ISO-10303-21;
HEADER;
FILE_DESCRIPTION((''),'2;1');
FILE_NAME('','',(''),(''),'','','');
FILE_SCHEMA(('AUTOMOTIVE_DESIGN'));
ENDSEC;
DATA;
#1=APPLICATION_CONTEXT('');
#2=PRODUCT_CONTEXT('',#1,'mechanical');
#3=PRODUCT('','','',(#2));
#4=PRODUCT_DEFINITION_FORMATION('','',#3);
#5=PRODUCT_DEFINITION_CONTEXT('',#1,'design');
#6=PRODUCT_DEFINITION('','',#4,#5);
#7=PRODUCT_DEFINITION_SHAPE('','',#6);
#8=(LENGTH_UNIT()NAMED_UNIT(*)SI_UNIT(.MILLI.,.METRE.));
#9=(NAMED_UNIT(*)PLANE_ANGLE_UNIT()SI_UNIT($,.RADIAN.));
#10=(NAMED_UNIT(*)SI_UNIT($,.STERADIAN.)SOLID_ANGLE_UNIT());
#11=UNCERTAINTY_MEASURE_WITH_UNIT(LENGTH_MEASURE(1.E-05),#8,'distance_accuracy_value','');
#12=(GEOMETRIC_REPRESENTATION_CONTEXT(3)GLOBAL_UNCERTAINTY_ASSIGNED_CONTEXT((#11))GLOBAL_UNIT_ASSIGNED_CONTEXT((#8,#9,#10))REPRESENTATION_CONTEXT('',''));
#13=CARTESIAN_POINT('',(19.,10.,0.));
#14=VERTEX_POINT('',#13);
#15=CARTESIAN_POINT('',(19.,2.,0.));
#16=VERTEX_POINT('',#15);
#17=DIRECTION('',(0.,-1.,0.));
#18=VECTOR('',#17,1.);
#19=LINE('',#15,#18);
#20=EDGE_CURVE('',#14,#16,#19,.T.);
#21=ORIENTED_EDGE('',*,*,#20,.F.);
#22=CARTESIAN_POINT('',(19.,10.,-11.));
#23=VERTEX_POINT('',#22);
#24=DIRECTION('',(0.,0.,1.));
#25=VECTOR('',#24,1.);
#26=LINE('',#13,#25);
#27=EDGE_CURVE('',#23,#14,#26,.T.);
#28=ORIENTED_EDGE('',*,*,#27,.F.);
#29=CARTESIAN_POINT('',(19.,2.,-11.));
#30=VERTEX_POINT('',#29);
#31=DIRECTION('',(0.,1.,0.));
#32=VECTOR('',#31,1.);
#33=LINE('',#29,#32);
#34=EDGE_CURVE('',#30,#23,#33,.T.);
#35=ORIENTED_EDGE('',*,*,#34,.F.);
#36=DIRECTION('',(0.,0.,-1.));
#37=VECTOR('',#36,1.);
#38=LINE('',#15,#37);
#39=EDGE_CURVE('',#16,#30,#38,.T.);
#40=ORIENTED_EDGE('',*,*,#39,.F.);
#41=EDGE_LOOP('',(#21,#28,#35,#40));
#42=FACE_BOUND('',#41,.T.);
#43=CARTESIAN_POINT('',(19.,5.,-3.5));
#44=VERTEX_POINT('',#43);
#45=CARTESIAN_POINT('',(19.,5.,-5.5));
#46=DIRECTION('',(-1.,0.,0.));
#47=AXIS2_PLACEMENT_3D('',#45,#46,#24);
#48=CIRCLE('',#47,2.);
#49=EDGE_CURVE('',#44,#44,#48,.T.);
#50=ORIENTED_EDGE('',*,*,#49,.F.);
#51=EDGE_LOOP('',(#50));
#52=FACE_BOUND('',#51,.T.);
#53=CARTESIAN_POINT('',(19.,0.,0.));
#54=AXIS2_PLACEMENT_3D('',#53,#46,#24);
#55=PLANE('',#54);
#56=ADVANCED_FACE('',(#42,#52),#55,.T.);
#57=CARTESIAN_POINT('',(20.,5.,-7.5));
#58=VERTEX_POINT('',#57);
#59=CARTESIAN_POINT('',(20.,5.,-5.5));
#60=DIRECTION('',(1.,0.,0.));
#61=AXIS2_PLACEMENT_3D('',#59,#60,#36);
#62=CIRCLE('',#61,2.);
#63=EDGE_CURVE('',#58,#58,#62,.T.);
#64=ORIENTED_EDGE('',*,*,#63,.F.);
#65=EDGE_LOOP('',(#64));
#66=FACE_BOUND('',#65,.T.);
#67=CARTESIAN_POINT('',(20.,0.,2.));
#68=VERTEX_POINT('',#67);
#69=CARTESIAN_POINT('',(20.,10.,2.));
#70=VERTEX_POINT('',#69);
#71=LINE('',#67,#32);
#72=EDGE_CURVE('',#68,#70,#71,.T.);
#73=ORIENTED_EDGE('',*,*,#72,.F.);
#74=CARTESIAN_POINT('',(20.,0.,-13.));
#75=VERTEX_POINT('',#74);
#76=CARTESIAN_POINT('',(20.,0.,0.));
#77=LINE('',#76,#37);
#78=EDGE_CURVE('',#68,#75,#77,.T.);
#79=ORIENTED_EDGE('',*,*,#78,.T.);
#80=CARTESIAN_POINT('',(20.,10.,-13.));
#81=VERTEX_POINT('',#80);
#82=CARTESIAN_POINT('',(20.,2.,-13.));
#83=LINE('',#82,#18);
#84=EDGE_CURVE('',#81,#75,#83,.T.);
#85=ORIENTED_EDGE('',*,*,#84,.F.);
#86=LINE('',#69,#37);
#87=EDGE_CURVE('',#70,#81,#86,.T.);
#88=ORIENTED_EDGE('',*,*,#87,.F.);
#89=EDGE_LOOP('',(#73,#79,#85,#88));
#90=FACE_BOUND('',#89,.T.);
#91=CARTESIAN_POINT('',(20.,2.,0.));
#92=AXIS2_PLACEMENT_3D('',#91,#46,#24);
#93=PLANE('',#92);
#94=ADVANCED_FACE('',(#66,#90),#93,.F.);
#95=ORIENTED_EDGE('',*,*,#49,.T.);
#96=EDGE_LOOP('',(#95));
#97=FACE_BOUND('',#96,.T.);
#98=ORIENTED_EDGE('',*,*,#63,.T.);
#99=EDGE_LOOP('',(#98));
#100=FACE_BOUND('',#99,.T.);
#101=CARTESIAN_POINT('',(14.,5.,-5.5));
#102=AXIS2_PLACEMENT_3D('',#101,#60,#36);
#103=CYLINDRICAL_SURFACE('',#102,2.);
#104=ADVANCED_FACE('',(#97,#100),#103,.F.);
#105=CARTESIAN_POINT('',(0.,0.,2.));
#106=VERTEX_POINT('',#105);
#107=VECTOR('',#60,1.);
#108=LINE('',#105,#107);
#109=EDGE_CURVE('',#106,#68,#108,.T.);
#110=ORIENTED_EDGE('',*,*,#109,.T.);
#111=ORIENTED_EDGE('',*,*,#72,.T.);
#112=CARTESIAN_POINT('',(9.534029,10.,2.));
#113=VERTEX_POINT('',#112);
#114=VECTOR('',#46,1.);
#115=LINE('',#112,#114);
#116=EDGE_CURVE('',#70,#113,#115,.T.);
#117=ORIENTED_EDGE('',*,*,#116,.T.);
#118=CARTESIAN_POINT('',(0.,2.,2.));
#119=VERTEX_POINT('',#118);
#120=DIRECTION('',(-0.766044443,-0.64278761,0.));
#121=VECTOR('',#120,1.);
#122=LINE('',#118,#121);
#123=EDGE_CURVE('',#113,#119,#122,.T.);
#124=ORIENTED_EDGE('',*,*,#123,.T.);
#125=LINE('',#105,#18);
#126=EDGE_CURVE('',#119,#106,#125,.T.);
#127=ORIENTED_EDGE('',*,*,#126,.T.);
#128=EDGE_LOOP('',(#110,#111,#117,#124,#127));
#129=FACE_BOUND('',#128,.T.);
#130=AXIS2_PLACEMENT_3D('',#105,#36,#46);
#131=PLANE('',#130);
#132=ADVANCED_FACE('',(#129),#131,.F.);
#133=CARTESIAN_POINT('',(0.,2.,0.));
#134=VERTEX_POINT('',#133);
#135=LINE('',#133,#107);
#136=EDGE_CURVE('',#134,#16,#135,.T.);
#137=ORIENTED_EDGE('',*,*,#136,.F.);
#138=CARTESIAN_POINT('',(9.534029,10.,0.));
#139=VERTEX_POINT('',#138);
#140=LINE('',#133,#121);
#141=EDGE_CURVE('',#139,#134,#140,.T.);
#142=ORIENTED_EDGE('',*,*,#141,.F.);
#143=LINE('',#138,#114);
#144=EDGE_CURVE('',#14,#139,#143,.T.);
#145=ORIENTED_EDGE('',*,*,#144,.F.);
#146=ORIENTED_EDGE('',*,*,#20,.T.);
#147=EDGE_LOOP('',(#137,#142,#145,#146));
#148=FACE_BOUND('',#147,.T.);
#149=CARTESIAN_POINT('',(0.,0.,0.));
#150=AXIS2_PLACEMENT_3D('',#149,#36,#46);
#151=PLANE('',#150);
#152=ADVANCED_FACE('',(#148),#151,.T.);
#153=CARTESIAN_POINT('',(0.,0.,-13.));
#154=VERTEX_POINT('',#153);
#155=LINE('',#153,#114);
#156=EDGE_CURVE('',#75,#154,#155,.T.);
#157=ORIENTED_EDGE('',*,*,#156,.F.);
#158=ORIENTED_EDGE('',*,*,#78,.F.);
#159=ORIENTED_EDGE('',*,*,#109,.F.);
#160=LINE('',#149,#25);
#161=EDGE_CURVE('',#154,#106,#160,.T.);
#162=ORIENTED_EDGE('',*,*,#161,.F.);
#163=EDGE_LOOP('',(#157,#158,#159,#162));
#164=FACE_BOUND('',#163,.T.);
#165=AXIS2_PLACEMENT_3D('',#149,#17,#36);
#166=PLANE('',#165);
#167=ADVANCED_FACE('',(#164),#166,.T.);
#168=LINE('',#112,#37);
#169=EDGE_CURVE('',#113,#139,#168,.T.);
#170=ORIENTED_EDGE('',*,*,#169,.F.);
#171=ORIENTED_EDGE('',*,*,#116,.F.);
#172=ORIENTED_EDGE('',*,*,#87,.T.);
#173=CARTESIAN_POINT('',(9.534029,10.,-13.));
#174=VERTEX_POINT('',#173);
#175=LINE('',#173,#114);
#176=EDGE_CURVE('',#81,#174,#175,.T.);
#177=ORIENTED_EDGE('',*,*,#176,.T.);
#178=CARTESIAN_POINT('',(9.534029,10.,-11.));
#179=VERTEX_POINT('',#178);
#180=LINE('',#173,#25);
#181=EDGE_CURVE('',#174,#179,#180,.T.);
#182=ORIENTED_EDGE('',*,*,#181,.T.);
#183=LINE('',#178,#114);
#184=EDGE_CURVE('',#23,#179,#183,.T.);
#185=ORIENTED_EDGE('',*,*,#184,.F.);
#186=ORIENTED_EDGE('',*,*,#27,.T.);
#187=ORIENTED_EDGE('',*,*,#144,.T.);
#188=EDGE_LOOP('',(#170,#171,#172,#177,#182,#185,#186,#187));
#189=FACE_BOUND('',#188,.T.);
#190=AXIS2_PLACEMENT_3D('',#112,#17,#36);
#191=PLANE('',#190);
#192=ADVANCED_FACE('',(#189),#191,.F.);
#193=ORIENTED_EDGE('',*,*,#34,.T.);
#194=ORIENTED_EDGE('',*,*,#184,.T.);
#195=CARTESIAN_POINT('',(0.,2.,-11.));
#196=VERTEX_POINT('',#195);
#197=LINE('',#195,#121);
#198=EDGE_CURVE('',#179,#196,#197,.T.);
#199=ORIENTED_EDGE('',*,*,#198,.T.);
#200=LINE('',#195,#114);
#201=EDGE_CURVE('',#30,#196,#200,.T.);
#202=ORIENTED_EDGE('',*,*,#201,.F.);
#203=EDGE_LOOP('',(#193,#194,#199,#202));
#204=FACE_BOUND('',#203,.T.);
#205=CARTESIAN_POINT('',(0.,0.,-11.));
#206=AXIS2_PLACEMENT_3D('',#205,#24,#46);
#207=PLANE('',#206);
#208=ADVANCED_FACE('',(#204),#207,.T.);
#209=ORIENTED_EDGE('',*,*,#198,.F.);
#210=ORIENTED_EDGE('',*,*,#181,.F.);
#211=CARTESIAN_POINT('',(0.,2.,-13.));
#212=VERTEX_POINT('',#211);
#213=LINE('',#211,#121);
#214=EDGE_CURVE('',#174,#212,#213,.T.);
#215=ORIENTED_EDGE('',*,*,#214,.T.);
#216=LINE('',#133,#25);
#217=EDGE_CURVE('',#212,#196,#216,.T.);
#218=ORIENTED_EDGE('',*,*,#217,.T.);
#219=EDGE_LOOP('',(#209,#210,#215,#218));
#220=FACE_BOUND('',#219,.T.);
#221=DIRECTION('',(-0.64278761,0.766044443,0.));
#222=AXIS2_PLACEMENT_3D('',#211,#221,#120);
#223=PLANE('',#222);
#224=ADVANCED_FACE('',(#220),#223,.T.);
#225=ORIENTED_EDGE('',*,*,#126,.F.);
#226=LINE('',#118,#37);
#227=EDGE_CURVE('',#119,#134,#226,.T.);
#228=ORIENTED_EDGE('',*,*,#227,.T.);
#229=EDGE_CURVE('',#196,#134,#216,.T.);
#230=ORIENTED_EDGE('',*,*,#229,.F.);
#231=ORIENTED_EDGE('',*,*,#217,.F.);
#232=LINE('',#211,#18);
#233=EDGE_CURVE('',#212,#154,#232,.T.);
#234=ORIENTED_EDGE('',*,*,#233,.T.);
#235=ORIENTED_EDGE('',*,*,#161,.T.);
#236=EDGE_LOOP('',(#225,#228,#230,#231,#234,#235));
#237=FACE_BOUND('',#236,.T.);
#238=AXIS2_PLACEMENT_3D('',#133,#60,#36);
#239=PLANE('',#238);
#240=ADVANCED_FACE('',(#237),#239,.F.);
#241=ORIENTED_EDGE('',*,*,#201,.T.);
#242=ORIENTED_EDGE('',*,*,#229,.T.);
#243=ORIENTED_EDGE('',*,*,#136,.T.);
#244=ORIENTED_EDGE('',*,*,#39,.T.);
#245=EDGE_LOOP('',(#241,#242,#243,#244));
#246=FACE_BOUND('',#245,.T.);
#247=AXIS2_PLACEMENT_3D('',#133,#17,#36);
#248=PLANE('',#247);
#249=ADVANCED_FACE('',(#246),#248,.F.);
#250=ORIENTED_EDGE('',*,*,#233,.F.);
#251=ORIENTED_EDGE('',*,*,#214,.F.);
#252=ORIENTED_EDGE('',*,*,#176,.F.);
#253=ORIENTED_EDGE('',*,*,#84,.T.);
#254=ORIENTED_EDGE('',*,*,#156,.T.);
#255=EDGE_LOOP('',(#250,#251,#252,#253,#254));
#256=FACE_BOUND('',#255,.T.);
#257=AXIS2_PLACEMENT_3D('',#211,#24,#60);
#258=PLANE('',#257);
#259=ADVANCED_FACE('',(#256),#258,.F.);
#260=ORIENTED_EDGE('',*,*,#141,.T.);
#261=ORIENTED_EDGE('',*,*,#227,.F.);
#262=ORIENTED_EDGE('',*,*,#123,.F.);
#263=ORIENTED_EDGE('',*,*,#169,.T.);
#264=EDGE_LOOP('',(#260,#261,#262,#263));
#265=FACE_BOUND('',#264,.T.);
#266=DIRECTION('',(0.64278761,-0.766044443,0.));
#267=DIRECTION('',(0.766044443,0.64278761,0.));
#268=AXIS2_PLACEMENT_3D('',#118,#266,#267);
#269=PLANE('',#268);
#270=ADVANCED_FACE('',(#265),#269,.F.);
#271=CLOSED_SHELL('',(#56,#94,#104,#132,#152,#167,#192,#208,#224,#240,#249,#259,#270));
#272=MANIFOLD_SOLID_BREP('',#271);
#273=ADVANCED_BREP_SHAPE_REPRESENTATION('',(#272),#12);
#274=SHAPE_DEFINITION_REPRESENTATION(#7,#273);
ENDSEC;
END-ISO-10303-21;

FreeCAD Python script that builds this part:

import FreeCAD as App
import Part
import Sketcher
from FreeCAD import Vector
Q = App.Units.Quantity

doc = App.newDocument("Part")
body = doc.addObject("PartDesign::Body", "Body")

sketch1 = body.newObject("Sketcher::SketchObject", "Sketch")
sketch1.AttachmentSupport = (doc.getObject("XZ_Plane"), [""])
sketch1.MapMode = "FlatFace"
sketch1.addGeometry(Part.LineSegment(Vector(0, -13, 0), Vector(0, 0, 0)), False)
sketch1.addGeometry(Part.LineSegment(Vector(0, 0, 0), Vector(20, 0, 0)), False)
sketch1.addGeometry(Part.LineSegment(Vector(20, 0, 0), Vector(20, -13, 0)), False)
sketch1.addGeometry(Part.LineSegment(Vector(20, -13, 0), Vector(0, -13, 0)), False)
sketch1.addConstraint(Sketcher.Constraint("Coincident", 0, 2, 1, 1))
sketch1.addConstraint(Sketcher.Constraint("Coincident", 1, 2, 2, 1))
sketch1.addConstraint(Sketcher.Constraint("Coincident", 2, 2, 3, 1))
sketch1.addConstraint(Sketcher.Constraint("Coincident", 3, 2, 0, 1))
sketch1.addConstraint(Sketcher.Constraint("Vertical", 0))
sketch1.addConstraint(Sketcher.Constraint("Horizontal", 1))
sketch1.addConstraint(Sketcher.Constraint("Vertical", 2))
sketch1.addConstraint(Sketcher.Constraint("Horizontal", 3))
sketch1.addConstraint(Sketcher.Constraint("Coincident", 0, 2, -1, 1))
sketch1.addConstraint(Sketcher.Constraint("DistanceX", 1, 1, 1, 2, 20.0))
sketch1.addConstraint(Sketcher.Constraint("DistanceY", 0, 1, 0, 2, 13.0))
pad1 = body.newObject("PartDesign::Pad", "Pad")
pad1.Profile = sketch1
pad1.Length = 2
pad1.Reversed = True

sketch2 = body.newObject("Sketcher::SketchObject", "Sketch001")
sketch2.AttachmentSupport = (doc.getObject("XY_Plane"), [""])
sketch2.MapMode = "FlatFace"
sketch2.addGeometry(Part.LineSegment(Vector(0, 0, 0), Vector(20, 0, 0)), False)
sketch2.addGeometry(Part.LineSegment(Vector(20, 0, 0), Vector(20, 10, 0)), False)
sketch2.addGeometry(Part.LineSegment(Vector(20, 10, 0), Vector(9.534029, 10, 0)), False)
sketch2.addGeometry(Part.LineSegment(Vector(9.534029, 10, 0), Vector(0, 2, 0)), False)
sketch2.addGeometry(Part.LineSegment(Vector(0, 2, 0), Vector(0, 0, 0)), False)
sketch2.addConstraint(Sketcher.Constraint("Coincident", 0, 2, 1, 1))
sketch2.addConstraint(Sketcher.Constraint("Coincident", 1, 2, 2, 1))
sketch2.addConstraint(Sketcher.Constraint("Coincident", 2, 2, 3, 1))
sketch2.addConstraint(Sketcher.Constraint("Coincident", 3, 2, 4, 1))
sketch2.addConstraint(Sketcher.Constraint("Coincident", 4, 2, 0, 1))
sketch2.addConstraint(Sketcher.Constraint("Horizontal", 0))
sketch2.addConstraint(Sketcher.Constraint("Vertical", 1))
sketch2.addConstraint(Sketcher.Constraint("Horizontal", 2))
sketch2.addConstraint(Sketcher.Constraint("Vertical", 4))
sketch2.addConstraint(Sketcher.Constraint("Coincident", 4, 2, -1, 1))
sketch2.addConstraint(Sketcher.Constraint("DistanceX", 0, 1, 0, 2, 20.0))
sketch2.addConstraint(Sketcher.Constraint("DistanceY", 1, 1, 1, 2, 10.0))
sketch2.addConstraint(Sketcher.Constraint("DistanceY", 4, 2, 4, 1, 2.0))
sketch2.addConstraint(Sketcher.Constraint("Angle", 3, Q("-140 deg")))
pad2 = body.newObject("PartDesign::Pad", "Pad001")
pad2.Profile = sketch2
pad2.Length = 2
doc.recompute()

datumplane = body.newObject("PartDesign::Plane", "DatumPlane")
datumplane.AttachmentSupport = (doc.getObject("XY_Plane"), [""])
datumplane.MapMode = "FlatFace"
datumplane.AttachmentOffset = App.Placement(Vector(0, 0, -5.5), App.Rotation())
mirrored = body.newObject("PartDesign::Mirrored", "Mirrored")
mirrored.Originals = [pad2]
mirrored.MirrorPlane = (datumplane, [""])
body.Tip = mirrored

sketch3 = body.newObject("Sketcher::SketchObject", "Sketch002")
sketch3.AttachmentSupport = (doc.getObject("YZ_Plane"), [""])
sketch3.MapMode = "FlatFace"
sketch3.AttachmentOffset = App.Placement(Vector(0, 0, 20), App.Rotation())
sketch3.addGeometry(Part.LineSegment(Vector(10, 0, 0), Vector(2, 0, 0)), False)
sketch3.addGeometry(Part.LineSegment(Vector(2, 0, 0), Vector(2, -11, 0)), False)
sketch3.addGeometry(Part.LineSegment(Vector(2, -11, 0), Vector(10, -11, 0)), False)
sketch3.addGeometry(Part.LineSegment(Vector(10, -11, 0), Vector(10, 0, 0)), False)
sketch3.addConstraint(Sketcher.Constraint("Coincident", 0, 2, 1, 1))
sketch3.addConstraint(Sketcher.Constraint("Coincident", 1, 2, 2, 1))
sketch3.addConstraint(Sketcher.Constraint("Coincident", 2, 2, 3, 1))
sketch3.addConstraint(Sketcher.Constraint("Coincident", 3, 2, 0, 1))
sketch3.addConstraint(Sketcher.Constraint("Horizontal", 0))
sketch3.addConstraint(Sketcher.Constraint("Vertical", 1))
sketch3.addConstraint(Sketcher.Constraint("Horizontal", 2))
sketch3.addConstraint(Sketcher.Constraint("Vertical", 3))
sketch3.addConstraint(Sketcher.Constraint("PointOnObject", 0, 2, -1))
sketch3.addConstraint(Sketcher.Constraint("DistanceX", 0, 2, 0, 1, 8.0))
sketch3.addConstraint(Sketcher.Constraint("DistanceY", 1, 2, 1, 1, 11.0))
sketch3.addConstraint(Sketcher.Constraint("DistanceX", -1, 1, 0, 2, 2.0))
pad3 = body.newObject("PartDesign::Pad", "Pad002")
pad3.Profile = sketch3
pad3.Length = 1
pad3.Reversed = True

sketch4 = body.newObject("Sketcher::SketchObject", "Sketch003")
sketch4.AttachmentSupport = (doc.getObject("YZ_Plane"), [""])
sketch4.MapMode = "FlatFace"
sketch4.AttachmentOffset = App.Placement(Vector(0, 0, 20), App.Rotation())
sketch4.addGeometry(Part.Circle(Vector(5, -5.5, 0), Vector(0, 0, 1), 2), False)
sketch4.addConstraint(Sketcher.Constraint("Diameter", 0, 4.0))
sketch4.addConstraint(Sketcher.Constraint("DistanceX", -1, 1, 0, 3, 5.0))
sketch4.addConstraint(Sketcher.Constraint("DistanceY", 0, 3, -1, 1, 5.5))
pocket1 = body.newObject("PartDesign::Pocket", "Pocket")
pocket1.Profile = sketch4
pocket1.Length = 6

doc.recompute()
